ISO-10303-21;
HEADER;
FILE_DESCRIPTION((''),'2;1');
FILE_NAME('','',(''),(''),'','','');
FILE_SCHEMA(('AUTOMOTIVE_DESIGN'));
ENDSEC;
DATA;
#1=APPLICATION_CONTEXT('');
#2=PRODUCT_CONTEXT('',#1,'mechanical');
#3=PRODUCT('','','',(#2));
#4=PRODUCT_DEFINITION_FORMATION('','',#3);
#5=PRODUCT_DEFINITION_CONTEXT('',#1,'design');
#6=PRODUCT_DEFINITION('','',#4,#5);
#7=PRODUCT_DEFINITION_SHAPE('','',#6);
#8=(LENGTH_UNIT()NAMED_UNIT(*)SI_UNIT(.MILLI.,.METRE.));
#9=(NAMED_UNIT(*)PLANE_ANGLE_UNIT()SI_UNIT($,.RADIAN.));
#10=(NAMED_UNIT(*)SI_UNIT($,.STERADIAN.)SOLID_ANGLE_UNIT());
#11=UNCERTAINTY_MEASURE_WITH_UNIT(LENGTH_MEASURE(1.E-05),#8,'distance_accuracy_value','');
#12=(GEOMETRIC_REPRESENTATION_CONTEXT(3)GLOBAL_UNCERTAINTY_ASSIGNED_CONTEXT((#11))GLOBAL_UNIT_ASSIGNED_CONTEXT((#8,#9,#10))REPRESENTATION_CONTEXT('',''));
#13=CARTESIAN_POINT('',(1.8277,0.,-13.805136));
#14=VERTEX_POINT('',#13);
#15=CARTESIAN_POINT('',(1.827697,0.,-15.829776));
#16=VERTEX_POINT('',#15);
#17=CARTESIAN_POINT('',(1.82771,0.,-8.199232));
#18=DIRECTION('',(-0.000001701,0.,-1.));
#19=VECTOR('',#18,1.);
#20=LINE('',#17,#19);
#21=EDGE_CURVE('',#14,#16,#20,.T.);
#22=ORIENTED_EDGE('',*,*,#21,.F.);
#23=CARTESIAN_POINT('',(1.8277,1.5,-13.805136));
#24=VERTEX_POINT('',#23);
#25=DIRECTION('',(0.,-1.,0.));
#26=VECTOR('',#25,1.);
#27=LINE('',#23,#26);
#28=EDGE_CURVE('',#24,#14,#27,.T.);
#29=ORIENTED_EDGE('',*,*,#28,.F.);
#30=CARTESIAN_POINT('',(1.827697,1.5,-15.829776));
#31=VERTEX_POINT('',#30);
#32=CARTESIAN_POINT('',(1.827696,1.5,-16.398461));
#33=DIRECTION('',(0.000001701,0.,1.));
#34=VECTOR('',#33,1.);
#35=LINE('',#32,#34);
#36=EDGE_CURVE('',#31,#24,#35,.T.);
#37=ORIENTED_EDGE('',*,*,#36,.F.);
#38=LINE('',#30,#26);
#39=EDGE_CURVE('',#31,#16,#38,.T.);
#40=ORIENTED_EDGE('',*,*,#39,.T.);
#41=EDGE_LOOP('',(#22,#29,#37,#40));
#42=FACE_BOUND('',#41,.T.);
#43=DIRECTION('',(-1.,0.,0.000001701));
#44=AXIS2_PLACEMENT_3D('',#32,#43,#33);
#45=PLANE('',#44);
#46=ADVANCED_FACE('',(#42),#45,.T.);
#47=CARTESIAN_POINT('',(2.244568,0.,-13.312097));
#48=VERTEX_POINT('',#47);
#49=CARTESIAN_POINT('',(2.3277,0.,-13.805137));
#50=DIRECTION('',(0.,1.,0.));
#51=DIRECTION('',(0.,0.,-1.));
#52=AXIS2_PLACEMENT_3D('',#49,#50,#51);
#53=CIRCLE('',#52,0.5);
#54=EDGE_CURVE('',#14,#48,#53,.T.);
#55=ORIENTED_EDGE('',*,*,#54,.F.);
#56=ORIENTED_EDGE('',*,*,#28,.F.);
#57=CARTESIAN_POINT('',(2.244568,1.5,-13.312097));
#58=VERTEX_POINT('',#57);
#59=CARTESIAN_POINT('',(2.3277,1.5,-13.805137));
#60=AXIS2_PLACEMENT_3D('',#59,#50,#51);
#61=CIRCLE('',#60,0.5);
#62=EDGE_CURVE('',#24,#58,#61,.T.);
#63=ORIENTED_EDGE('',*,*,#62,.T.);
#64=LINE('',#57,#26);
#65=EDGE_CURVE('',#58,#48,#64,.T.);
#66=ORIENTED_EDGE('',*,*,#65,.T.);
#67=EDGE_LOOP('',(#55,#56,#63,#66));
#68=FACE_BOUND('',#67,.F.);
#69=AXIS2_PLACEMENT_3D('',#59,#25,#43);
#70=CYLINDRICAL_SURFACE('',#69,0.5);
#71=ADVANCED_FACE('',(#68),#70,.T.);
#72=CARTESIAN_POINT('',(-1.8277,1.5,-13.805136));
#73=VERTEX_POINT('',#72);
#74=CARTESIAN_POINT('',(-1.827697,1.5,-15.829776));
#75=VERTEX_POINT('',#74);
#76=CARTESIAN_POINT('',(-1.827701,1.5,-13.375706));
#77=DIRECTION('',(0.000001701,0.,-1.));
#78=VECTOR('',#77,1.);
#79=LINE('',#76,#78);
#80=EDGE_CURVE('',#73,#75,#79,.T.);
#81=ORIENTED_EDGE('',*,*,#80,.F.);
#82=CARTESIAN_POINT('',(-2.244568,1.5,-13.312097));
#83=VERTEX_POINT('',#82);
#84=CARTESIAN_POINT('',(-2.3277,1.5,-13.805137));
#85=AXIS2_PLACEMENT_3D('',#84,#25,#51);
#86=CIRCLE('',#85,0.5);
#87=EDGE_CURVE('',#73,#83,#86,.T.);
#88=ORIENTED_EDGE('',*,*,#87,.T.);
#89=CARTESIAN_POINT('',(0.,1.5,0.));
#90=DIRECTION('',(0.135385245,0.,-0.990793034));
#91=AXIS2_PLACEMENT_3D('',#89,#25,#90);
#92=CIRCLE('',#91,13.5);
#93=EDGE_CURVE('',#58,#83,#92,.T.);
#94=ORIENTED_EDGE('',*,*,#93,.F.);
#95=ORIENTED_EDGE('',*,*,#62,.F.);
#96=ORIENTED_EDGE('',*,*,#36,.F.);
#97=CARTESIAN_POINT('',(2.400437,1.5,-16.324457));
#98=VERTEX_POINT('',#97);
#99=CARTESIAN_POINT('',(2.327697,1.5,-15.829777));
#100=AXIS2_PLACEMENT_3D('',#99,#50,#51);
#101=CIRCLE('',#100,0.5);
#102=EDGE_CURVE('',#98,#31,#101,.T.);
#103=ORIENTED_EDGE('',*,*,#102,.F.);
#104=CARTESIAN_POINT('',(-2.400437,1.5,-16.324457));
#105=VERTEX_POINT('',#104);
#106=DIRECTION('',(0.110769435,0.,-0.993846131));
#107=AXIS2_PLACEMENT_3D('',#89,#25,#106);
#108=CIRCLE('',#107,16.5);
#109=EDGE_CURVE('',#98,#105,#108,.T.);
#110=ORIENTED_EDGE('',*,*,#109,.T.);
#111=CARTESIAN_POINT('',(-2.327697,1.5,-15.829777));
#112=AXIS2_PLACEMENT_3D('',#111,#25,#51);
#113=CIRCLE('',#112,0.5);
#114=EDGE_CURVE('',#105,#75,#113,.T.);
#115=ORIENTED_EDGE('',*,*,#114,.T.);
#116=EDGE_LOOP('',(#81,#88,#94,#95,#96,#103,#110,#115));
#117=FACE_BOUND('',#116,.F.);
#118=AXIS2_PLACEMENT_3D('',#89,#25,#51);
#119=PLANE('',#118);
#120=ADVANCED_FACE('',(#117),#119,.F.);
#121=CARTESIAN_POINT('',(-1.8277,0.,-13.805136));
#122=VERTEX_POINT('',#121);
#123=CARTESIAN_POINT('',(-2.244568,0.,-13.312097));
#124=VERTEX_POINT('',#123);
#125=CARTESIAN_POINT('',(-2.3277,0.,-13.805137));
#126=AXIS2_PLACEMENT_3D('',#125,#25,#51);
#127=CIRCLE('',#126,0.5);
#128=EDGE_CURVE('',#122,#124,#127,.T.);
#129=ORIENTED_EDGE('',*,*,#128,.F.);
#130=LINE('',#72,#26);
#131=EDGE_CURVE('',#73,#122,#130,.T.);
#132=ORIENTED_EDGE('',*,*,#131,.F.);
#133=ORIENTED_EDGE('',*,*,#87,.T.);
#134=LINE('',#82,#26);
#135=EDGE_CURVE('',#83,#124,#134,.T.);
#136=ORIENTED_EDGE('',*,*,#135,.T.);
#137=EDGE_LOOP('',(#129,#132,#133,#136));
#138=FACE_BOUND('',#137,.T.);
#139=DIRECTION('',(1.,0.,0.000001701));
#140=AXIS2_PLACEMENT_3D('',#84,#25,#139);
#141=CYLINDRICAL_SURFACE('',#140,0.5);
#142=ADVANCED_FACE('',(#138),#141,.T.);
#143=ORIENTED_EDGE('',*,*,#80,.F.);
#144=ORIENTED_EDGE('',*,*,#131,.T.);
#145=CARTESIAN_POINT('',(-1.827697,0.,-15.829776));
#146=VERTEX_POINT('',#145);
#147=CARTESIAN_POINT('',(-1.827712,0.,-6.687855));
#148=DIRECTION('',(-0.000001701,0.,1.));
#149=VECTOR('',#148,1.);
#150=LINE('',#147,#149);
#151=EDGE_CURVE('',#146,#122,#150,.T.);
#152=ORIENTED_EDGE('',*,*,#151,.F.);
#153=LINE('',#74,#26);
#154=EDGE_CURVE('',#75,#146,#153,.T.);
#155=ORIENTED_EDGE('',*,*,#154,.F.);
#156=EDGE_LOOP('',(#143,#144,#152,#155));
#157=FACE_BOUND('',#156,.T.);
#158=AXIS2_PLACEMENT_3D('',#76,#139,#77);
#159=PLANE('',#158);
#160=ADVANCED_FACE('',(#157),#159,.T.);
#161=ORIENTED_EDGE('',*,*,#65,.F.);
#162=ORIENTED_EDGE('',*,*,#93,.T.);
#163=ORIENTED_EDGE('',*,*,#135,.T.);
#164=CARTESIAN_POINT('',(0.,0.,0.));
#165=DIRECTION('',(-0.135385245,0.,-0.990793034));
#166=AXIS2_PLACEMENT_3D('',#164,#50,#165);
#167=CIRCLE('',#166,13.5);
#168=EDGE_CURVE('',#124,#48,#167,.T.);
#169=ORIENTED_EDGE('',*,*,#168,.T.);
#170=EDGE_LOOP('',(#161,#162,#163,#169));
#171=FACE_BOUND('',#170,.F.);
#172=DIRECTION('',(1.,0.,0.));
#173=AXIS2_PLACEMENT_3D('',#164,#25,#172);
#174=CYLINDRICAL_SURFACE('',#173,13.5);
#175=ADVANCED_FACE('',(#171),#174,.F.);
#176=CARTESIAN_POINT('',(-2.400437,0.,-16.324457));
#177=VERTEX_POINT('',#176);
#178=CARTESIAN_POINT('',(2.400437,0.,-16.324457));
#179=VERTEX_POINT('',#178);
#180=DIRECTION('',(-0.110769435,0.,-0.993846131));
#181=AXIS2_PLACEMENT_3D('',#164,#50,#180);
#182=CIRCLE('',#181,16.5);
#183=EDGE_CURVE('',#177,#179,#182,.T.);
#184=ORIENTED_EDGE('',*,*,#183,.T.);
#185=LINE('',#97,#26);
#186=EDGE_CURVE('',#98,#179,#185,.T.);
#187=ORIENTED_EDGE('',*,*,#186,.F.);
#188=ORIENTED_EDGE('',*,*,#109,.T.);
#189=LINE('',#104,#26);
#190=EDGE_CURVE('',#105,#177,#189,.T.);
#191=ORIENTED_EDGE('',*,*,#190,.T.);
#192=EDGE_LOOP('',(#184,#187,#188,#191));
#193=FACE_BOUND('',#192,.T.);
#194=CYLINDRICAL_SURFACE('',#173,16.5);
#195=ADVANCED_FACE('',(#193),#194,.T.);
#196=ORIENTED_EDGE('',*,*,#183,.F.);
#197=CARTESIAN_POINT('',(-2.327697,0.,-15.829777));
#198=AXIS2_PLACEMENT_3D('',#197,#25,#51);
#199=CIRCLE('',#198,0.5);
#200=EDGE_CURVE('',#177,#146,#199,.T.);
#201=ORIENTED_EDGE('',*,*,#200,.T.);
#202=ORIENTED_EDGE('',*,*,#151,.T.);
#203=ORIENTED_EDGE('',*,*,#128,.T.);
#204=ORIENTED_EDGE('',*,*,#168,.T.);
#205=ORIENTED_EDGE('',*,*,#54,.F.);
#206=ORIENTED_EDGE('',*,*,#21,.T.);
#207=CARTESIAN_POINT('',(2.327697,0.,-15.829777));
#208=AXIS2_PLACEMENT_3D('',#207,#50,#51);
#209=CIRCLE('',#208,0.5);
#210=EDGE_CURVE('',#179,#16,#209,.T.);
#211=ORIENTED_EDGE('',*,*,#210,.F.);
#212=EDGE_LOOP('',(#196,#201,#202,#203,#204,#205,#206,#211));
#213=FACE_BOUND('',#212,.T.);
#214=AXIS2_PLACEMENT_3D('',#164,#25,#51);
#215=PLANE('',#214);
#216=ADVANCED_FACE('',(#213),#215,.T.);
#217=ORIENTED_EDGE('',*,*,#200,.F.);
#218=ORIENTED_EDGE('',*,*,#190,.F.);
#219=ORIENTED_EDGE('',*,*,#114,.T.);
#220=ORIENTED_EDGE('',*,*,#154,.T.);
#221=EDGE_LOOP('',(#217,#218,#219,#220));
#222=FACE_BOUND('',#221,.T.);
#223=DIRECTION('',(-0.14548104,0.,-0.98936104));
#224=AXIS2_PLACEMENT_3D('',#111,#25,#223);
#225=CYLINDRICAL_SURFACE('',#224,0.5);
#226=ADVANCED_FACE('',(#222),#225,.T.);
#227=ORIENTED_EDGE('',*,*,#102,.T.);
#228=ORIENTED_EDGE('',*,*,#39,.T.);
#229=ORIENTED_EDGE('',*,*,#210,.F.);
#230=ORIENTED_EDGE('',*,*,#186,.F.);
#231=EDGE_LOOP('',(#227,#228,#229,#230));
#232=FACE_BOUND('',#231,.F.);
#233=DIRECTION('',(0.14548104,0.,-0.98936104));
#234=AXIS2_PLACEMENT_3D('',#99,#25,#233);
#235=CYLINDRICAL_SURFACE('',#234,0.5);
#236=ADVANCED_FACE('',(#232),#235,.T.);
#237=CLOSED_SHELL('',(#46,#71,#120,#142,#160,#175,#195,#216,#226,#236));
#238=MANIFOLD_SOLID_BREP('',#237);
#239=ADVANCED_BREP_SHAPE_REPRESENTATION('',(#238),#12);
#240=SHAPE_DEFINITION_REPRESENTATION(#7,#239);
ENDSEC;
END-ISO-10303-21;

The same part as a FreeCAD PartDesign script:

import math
import FreeCAD as App
import Part
import Sketcher


def edges_at(feature, points):
    """Names of the edges that pass closest to the given points."""
    edges = feature.Shape.Edges
    near = lambda p: min(range(len(edges)), key=lambda i: edges[i].distToShape(Part.Vertex(*p))[0])
    return sorted({f"Edge{near(p) + 1}" for p in points})

doc = App.newDocument("Part")
body = doc.addObject("PartDesign::Body", "Body")

# Sketch on XZ plane
sketch1 = doc.addObject("Sketcher::SketchObject", "Sketch")
body.addObject(sketch1)
sketch1.AttachmentSupport = (doc.XZ_Plane, [""])
sketch1.MapMode = "FlatFace"
sketch1.addGeometry([
    Part.Circle(App.Vector(0, 0, 0), App.Vector(0, 0, 1), 16.5),
    Part.Circle(App.Vector(0, 0, 0), App.Vector(0, 0, 1), 13.5),
], False)
sketch1.addConstraint([
    Sketcher.Constraint("Coincident", 0, 3, -1, 1),
    Sketcher.Constraint("Coincident", 1, 3, -1, 1),
    Sketcher.Constraint("Diameter", 0, 33.0),
    Sketcher.Constraint("Diameter", 1, 27.0),
])
pad1 = doc.addObject("PartDesign::Pad", "Pad")
body.addObject(pad1)
pad1.Profile = sketch1
pad1.Length = 1.5
pad1.Reversed = True

# Sketch on XZ plane
sketch2 = doc.addObject("Sketcher::SketchObject", "Sketch001")
body.addObject(sketch2)
sketch2.AttachmentSupport = (doc.XZ_Plane, [""])
sketch2.MapMode = "FlatFace"
sketch2.AttachmentOffset = App.Placement(App.Vector(0, 0, -1.5), App.Rotation())
sketch2.addGeometry([
    Part.LineSegment(App.Vector(-1.8277, -16.3985, 0), App.Vector(-1.8277, -13.3757, 0)),
    Part.ArcOfCircle(Part.Circle(App.Vector(0, 0, 0), App.Vector(0, 0, 1), 13.499994), math.radians(-97.780897), math.radians(-82.219103)),
    Part.LineSegment(App.Vector(1.8277, -13.3757, 0), App.Vector(1.8277, -16.3985, 0)),
    Part.ArcOfCircle(Part.Circle(App.Vector(0, 0, 0), App.Vector(0, 0, 1), 16.500039), math.radians(-96.359672), math.radians(-83.640328)),
], False)
sketch2.addConstraint([
    Sketcher.Constraint("Coincident", 0, 2, 1, 1),
    Sketcher.Constraint("Coincident", 1, 2, 2, 1),
    Sketcher.Constraint("Coincident", 2, 2, 3, 2),
    Sketcher.Constraint("Coincident", 3, 1, 0, 1),
    Sketcher.Constraint("Vertical", 0),
    Sketcher.Constraint("Vertical", 2),
    Sketcher.Constraint("Coincident", 1, 3, -1, 1),
    Sketcher.Constraint("Coincident", 3, 3, -1, 1),
    Sketcher.Constraint("Horizontal", 0, 2, 1, 2),
    Sketcher.Constraint("Radius", 1, 13.5),
    Sketcher.Constraint("Radius", 3, 16.5),
    Sketcher.Constraint("DistanceY", 0, 1, 0, 2, 3.0228),
])
pocket1 = doc.addObject("PartDesign::Pocket", "Pocket")
body.addObject(pocket1)
pocket1.Profile = sketch2
pocket1.Length = 12.4809
pocket1.Reversed = True
doc.recompute()

fillet = doc.addObject("PartDesign::Fillet", "Fillet")
body.addObject(fillet)
fillet.Base = (pocket1, edges_at(pocket1, [
    (-1.828, 0.75, -13.376),
    (-1.828, 0.75, -16.398),
    (1.828, 0.75, -16.398),
    (1.828, 0.75, -13.376),
]))
fillet.Radius = 0.5

doc.recompute()
